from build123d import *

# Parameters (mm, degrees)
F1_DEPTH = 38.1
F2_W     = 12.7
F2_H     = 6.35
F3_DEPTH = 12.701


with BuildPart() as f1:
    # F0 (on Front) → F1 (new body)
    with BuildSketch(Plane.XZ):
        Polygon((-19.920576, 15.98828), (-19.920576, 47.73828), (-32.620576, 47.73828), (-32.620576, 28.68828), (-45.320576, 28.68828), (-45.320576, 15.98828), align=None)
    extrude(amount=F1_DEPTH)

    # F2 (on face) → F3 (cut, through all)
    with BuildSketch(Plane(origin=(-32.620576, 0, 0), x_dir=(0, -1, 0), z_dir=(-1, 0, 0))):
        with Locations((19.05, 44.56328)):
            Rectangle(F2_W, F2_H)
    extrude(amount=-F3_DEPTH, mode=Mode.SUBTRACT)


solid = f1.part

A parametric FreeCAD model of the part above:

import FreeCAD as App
import Part
import Sketcher
Q = App.Units.Quantity

doc = App.newDocument("Part")
body = doc.addObject("PartDesign::Body", "Body")

sketch1 = body.newObject("Sketcher::SketchObject", "Sketch")
sketch1.AttachmentSupport = (doc.getObject("XZ_Plane"), [""])
sketch1.MapMode = "FlatFace"
sketch1.addGeometry([
    Part.LineSegment(App.Vector(-20, 16, 0), App.Vector(-20, 48, 0)),
    Part.LineSegment(App.Vector(-20, 48, 0), App.Vector(-33, 48, 0)),
    Part.LineSegment(App.Vector(-33, 48, 0), App.Vector(-33, 29, 0)),
    Part.LineSegment(App.Vector(-33, 29, 0), App.Vector(-45, 29, 0)),
    Part.LineSegment(App.Vector(-45, 29, 0), App.Vector(-45, 16, 0)),
    Part.LineSegment(App.Vector(-45, 16, 0), App.Vector(-20, 16, 0)),
], False)
sketch1.addConstraint([
    Sketcher.Constraint("Coincident", 0, 2, 1, 1),
    Sketcher.Constraint("Coincident", 1, 2, 2, 1),
    Sketcher.Constraint("Coincident", 2, 2, 3, 1),
    Sketcher.Constraint("Coincident", 3, 2, 4, 1),
    Sketcher.Constraint("Coincident", 4, 2, 5, 1),
    Sketcher.Constraint("Coincident", 5, 2, 0, 1),
    Sketcher.Constraint("Vertical", 0),
    Sketcher.Constraint("Horizontal", 1),
    Sketcher.Constraint("Vertical", 2),
    Sketcher.Constraint("Horizontal", 3),
    Sketcher.Constraint("Vertical", 4),
    Sketcher.Constraint("Horizontal", 5),
    Sketcher.Constraint("Equal", 1, 3),
    Sketcher.Constraint("Equal", 3, 4),
    Sketcher.Constraint("DistanceX", 5, 1, 5, 2, Q("1 in")),
    Sketcher.Constraint("DistanceY", 0, 1, 0, 2, Q("1.25 in")),
    Sketcher.Constraint("DistanceY", -1, 1, 0, 2, Q("47.73828 mm")),
    Sketcher.Constraint("DistanceX", 0, 2, -1, 1, Q("19.920576 mm")),
])
pad1 = body.newObject("PartDesign::Pad", "Pad")
pad1.Profile = sketch1
pad1.Length = Q("1.5 in")

sketch2 = body.newObject("Sketcher::SketchObject", "Sketch001")
sketch2.AttachmentSupport = (doc.getObject("YZ_Plane"), [""])
sketch2.MapMode = "FlatFace"
sketch2.AttachmentOffset = App.Placement(App.Vector(0, 0, -32.620576), App.Rotation())
sketch2.addGeometry([
    Part.LineSegment(App.Vector(-13, 48, 0), App.Vector(-13, 41, 0)),
    Part.LineSegment(App.Vector(-13, 41, 0), App.Vector(-25, 41, 0)),
    Part.LineSegment(App.Vector(-25, 41, 0), App.Vector(-25, 48, 0)),
    Part.LineSegment(App.Vector(-25, 48, 0), App.Vector(-13, 48, 0)),
], False)
sketch2.addConstraint([
    Sketcher.Constraint("Coincident", 0, 2, 1, 1),
    Sketcher.Constraint("Coincident", 1, 2, 2, 1),
    Sketcher.Constraint("Coincident", 2, 2, 3, 1),
    Sketcher.Constraint("Coincident", 3, 2, 0, 1),
    Sketcher.Constraint("Vertical", 0),
    Sketcher.Constraint("Horizontal", 1),
    Sketcher.Constraint("Vertical", 2),
    Sketcher.Constraint("Horizontal", 3),
    Sketcher.Constraint("DistanceX", 1, 2, 1, 1, Q("0.5 in")),
    Sketcher.Constraint("DistanceX", 1, 2, -1, 1, Q("1 in")),
    Sketcher.Constraint("DistanceY", 0, 2, 0, 1, Q("0.25 in")),
    Sketcher.Constraint("DistanceY", -1, 1, 0, 2, Q("41.38828 mm")),
])
pocket1 = body.newObject("PartDesign::Pocket", "Pocket")
pocket1.Profile = sketch2
pocket1.Type = "ThroughAll"
pocket1.Reversed = True

doc.recompute()
